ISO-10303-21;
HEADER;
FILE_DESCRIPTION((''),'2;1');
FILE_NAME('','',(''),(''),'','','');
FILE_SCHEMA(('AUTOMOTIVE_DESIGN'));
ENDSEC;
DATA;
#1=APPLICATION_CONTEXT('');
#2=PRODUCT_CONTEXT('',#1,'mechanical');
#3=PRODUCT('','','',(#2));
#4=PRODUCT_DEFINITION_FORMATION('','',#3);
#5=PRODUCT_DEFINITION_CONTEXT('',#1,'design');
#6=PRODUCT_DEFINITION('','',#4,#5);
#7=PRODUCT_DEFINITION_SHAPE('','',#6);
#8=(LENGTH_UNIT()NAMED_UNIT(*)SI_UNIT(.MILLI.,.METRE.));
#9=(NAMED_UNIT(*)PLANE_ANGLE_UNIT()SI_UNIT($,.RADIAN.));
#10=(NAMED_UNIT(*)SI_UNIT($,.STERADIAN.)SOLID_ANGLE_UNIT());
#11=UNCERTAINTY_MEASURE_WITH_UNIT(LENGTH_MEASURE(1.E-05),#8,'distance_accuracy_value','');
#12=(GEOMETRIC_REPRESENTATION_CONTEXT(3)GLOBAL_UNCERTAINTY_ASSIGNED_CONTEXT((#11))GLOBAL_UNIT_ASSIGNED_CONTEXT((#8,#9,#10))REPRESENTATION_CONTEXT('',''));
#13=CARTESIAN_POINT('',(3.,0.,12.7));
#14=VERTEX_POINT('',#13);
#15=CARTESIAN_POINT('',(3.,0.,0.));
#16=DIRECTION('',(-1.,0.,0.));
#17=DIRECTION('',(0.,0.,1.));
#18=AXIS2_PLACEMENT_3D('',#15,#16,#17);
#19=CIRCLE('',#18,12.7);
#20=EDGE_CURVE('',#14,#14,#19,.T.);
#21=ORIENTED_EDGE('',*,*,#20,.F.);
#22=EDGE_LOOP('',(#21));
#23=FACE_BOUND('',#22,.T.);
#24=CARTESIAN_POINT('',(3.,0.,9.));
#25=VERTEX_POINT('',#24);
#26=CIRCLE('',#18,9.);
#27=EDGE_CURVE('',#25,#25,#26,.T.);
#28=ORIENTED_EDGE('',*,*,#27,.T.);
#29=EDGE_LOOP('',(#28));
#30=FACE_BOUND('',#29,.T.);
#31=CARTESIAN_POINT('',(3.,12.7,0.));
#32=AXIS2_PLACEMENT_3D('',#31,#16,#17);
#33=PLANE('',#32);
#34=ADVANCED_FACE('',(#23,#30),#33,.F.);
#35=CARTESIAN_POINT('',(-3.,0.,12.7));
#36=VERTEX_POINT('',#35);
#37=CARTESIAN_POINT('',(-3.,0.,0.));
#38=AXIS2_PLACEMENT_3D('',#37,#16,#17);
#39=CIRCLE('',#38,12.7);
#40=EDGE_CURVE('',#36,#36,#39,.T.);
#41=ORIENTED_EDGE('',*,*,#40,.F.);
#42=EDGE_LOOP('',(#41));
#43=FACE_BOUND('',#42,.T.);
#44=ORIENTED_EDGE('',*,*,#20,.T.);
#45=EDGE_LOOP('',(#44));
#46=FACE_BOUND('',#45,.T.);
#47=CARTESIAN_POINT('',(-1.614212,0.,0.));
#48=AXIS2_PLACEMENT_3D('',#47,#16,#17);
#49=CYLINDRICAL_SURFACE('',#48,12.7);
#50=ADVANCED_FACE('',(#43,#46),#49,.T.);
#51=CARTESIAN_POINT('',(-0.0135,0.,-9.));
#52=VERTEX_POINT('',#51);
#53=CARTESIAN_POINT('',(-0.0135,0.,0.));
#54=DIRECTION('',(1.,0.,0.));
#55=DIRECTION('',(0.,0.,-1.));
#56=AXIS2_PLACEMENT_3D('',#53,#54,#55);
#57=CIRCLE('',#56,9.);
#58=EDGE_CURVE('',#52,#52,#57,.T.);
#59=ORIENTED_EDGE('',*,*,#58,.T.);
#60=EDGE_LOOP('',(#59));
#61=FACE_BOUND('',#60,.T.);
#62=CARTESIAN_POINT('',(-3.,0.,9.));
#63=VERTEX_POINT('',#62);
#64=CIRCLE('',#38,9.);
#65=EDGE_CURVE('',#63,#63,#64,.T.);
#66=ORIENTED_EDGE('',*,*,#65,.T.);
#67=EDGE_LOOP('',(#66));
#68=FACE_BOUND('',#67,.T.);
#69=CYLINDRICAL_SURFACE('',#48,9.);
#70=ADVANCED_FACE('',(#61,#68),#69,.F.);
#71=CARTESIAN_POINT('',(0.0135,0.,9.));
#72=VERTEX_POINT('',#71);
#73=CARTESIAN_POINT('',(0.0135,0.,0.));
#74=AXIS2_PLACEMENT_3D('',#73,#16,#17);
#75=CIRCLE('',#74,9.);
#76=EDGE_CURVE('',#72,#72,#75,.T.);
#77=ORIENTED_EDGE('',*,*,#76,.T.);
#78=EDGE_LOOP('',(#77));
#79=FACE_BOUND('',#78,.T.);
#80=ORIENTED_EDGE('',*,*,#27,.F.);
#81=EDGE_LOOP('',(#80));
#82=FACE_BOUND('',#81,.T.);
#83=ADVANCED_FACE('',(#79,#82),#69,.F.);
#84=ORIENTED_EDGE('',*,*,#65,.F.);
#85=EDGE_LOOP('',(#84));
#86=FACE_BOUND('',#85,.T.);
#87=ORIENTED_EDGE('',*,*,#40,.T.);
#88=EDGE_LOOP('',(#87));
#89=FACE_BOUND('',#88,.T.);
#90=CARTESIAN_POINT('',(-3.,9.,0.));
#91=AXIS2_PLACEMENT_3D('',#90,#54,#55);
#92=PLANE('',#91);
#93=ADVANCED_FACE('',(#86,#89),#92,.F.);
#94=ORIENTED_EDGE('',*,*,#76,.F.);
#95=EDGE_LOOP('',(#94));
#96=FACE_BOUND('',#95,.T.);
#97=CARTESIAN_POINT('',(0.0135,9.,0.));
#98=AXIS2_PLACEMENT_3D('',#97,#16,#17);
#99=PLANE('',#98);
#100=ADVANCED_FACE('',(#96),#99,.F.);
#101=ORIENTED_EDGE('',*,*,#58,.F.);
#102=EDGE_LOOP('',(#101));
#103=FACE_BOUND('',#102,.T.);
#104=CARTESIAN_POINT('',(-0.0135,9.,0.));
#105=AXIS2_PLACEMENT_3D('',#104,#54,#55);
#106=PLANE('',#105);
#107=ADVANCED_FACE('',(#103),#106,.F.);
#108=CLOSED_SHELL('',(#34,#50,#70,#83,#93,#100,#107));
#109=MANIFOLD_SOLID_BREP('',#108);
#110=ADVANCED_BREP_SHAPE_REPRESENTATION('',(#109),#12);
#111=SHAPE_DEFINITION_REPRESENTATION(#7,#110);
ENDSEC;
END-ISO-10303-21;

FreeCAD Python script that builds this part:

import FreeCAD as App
import Part
import Sketcher
Q = App.Units.Quantity

doc = App.newDocument("Part")
body = doc.addObject("PartDesign::Body", "Body")

sketch1 = body.newObject("Sketcher::SketchObject", "Sketch")
sketch1.AttachmentSupport = (doc.getObject("XY_Plane"), [""])
sketch1.MapMode = "FlatFace"
sketch1.addGeometry([
    Part.LineSegment(App.Vector(-0.013, 9, 0), App.Vector(-0.013, 0, 0)),
    Part.LineSegment(App.Vector(-0.013, 0, 0), App.Vector(0.013, 0, 0)),
    Part.LineSegment(App.Vector(0.013, 0, 0), App.Vector(0.013, 9, 0)),
    Part.LineSegment(App.Vector(0.013, 9, 0), App.Vector(-0.013, 9, 0)),
], False)
sketch1.addConstraint([
    Sketcher.Constraint("Coincident", 0, 2, 1, 1),
    Sketcher.Constraint("Coincident", 1, 2, 2, 1),
    Sketcher.Constraint("Coincident", 2, 2, 3, 1),
    Sketcher.Constraint("Coincident", 3, 2, 0, 1),
    Sketcher.Constraint("Vertical", 0),
    Sketcher.Constraint("Horizontal", 1),
    Sketcher.Constraint("Vertical", 2),
    Sketcher.Constraint("Horizontal", 3),
    Sketcher.Constraint("Symmetric", 0, 2, 1, 2, -1, 1),
    Sketcher.Constraint("DistanceY", 0, 2, 0, 1, Q("9 mm")),
    Sketcher.Constraint("DistanceX", 1, 1, 1, 2, Q("0.027 mm")),
])
revolution = body.newObject("PartDesign::Revolution", "Revolution")
revolution.Profile = sketch1
revolution.ReferenceAxis = (sketch1, ["H_Axis"])
revolution.Angle = 360

sketch2 = body.newObject("Sketcher::SketchObject", "Sketch001")
sketch2.AttachmentSupport = (doc.getObject("XY_Plane"), [""])
sketch2.MapMode = "FlatFace"
sketch2.addGeometry([
    Part.LineSegment(App.Vector(-3, 12.7, 0), App.Vector(-3, 9, 0)),
    Part.LineSegment(App.Vector(-3, 9, 0), App.Vector(3, 9, 0)),
    Part.LineSegment(App.Vector(3, 9, 0), App.Vector(3, 12.7, 0)),
    Part.LineSegment(App.Vector(3, 12.7, 0), App.Vector(-3, 12.7, 0)),
], False)
sketch2.addConstraint([
    Sketcher.Constraint("Coincident", 0, 2, 1, 1),
    Sketcher.Constraint("Coincident", 1, 2, 2, 1),
    Sketcher.Constraint("Coincident", 2, 2, 3, 1),
    Sketcher.Constraint("Coincident", 3, 2, 0, 1),
    Sketcher.Constraint("Vertical", 0),
    Sketcher.Constraint("Horizontal", 1),
    Sketcher.Constraint("Vertical", 2),
    Sketcher.Constraint("Horizontal", 3),
    Sketcher.Constraint("DistanceX", 1, 1, 1, 2, Q("6 mm")),
    Sketcher.Constraint("DistanceY", 0, 2, 0, 1, Q("3.7 mm")),
    Sketcher.Constraint("DistanceX", 0, 2, -1, 1, Q("3 mm")),
    Sketcher.Constraint("DistanceY", -1, 1, 0, 2, Q("9 mm")),
])
revolution2 = body.newObject("PartDesign::Revolution", "Revolution001")
revolution2.Profile = sketch2
revolution2.ReferenceAxis = (sketch2, ["H_Axis"])
revolution2.Angle = 360

doc.recompute()
